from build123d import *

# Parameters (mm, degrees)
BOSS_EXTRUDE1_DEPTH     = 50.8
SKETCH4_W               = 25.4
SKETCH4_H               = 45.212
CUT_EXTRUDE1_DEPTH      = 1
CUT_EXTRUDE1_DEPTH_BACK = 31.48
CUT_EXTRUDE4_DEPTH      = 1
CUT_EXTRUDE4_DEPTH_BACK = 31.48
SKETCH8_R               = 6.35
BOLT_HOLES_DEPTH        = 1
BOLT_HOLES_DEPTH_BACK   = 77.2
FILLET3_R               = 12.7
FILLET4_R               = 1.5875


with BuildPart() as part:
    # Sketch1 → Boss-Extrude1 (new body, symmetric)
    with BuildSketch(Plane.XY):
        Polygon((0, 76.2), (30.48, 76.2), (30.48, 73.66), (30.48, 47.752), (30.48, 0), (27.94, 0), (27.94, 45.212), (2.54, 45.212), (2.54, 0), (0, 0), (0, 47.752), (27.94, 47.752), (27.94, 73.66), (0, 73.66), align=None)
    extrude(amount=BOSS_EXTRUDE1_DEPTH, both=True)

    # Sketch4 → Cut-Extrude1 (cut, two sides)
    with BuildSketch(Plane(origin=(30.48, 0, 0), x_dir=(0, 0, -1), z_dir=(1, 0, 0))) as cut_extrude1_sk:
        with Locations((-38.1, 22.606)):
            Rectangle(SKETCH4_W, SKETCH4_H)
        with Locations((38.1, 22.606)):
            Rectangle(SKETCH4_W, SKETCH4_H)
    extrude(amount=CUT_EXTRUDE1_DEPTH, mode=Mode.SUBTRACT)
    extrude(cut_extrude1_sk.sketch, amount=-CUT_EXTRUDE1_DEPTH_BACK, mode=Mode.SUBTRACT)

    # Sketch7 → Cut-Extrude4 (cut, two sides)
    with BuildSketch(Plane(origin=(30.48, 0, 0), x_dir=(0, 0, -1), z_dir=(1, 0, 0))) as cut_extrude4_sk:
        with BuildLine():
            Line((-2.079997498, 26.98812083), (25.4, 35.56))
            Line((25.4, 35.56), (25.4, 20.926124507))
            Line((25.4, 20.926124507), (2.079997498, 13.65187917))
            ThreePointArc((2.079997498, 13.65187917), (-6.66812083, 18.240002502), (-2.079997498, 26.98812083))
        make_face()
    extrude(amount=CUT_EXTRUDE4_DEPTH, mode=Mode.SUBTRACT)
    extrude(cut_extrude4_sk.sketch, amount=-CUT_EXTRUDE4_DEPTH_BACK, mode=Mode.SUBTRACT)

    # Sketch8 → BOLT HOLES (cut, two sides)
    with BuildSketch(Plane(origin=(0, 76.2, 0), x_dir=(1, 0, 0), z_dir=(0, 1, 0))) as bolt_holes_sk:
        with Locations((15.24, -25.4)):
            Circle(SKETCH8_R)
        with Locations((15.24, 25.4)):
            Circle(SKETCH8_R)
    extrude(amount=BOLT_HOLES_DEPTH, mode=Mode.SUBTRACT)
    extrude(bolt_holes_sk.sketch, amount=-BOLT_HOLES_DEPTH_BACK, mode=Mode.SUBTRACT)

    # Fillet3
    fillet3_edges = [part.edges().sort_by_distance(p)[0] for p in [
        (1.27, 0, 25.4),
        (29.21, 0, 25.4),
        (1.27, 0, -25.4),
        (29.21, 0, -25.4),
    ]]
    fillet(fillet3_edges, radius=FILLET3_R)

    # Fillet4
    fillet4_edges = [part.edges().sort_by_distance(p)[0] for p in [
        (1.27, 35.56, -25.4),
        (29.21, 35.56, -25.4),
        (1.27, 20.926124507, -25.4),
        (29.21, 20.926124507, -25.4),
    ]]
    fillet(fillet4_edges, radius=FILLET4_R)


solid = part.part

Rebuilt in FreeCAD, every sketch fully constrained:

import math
import FreeCAD as App
import Part
import Sketcher
Q = App.Units.Quantity


def edges_at(feature, points):
    """Names of the edges that pass closest to the given points."""
    edges = feature.Shape.Edges
    near = lambda p: min(range(len(edges)), key=lambda i: edges[i].distToShape(Part.Vertex(*p))[0])
    return sorted({f"Edge{near(p) + 1}" for p in points})


def add_polygon(sketch, points):
    """Adds a closed chain of lines whose ends are joined by coincident constraints."""
    first, n = sketch.GeometryCount, len(points)
    for a, b in zip(points, points[1:] + points[:1]):
        sketch.addGeometry(Part.LineSegment(App.Vector(*a, 0), App.Vector(*b, 0)), False)
    for i in range(n):
        sketch.addConstraint(Sketcher.Constraint("Coincident", first + i, 2, first + (i + 1) % n, 1))

doc = App.newDocument("Part")
params = doc.addObject("Spreadsheet::Sheet", "Params")
for row, (alias, value) in enumerate([
    ("sketch1_width", "1 in"),
    ("sketch1_height", "3 in"),
    ("sketch1_width2", "1.2 in"),
    ("sketch1_height2", "1.02 in"),
    ("sketch1_height3", "1.78 in"),
    ("pad1_length", "4 in"),
    ("sketch2_height", "1 in"),
    ("sketch2_width", "1.78 in"),
    ("sketch3_radius", "0.275 in"),
    ("sketch4_diameter", "0.5 in"),
    ("fillet_radius", "0.5 in"),
    ("fillet2_radius", "0.0625 in"),
], start=1):
    params.set(f"A{row}", alias)
    params.set(f"B{row}", "=" + value)
    params.setAlias(f"B{row}", alias)

body = doc.addObject("PartDesign::Body", "Body")

# Sketch on XY plane
sketch1 = body.newObject("Sketcher::SketchObject", "Sketch")
sketch1.AttachmentSupport = (doc.getObject("XY_Plane"), [""])
sketch1.MapMode = "FlatFace"
add_polygon(sketch1, [(30.5, 76.2), (0, 76.2), (0, 73.7), (27.9, 73.7), (27.9, 47.8), (0, 47.8), (0, 0), (2.5, 0), (2.5, 45.2), (27.9, 45.2), (27.9, 0), (30.5, 0)])  # lines 0-11
sketch1.addConstraint(Sketcher.Constraint("Horizontal", 0))
sketch1.addConstraint(Sketcher.Constraint("Vertical", 1))
sketch1.addConstraint(Sketcher.Constraint("Horizontal", 2))
sketch1.addConstraint(Sketcher.Constraint("Vertical", 3))
sketch1.addConstraint(Sketcher.Constraint("Horizontal", 4))
sketch1.addConstraint(Sketcher.Constraint("Vertical", 5))
sketch1.addConstraint(Sketcher.Constraint("Horizontal", 6))
sketch1.addConstraint(Sketcher.Constraint("Vertical", 7))
sketch1.addConstraint(Sketcher.Constraint("Horizontal", 8))
sketch1.addConstraint(Sketcher.Constraint("Vertical", 9))
sketch1.addConstraint(Sketcher.Constraint("Horizontal", 10))
sketch1.addConstraint(Sketcher.Constraint("Vertical", 11))
sketch1.addConstraint(Sketcher.Constraint("Coincident", 5, 2, -1, 1))
sketch1.addConstraint(Sketcher.Constraint("PointOnObject", 0, 2, -2))
sketch1.addConstraint(Sketcher.Constraint("PointOnObject", 9, 2, -1))
sketch1.addConstraint(Sketcher.Constraint("Vertical", 3, 2, 8, 2))
sketch1.addConstraint(Sketcher.Constraint("Equal", 6, 10))
sketch1.addConstraint(Sketcher.Constraint("Equal", 10, 1))
sketch1.addConstraint(Sketcher.Constraint("DistanceX", 8, 1, 8, 2, Q("1 in")))
sketch1.addConstraint(Sketcher.Constraint("DistanceY", 11, 1, 11, 2, Q("3 in")))
sketch1.addConstraint(Sketcher.Constraint("DistanceX", 0, 2, 0, 1, Q("1.2 in")))
sketch1.addConstraint(Sketcher.Constraint("DistanceY", 3, 2, 3, 1, Q("1.02 in")))
sketch1.addConstraint(Sketcher.Constraint("DistanceY", 7, 1, 7, 2, Q("1.78 in")))
sketch1.setExpression("Constraints[30]", "Params.sketch1_width")
sketch1.setExpression("Constraints[31]", "Params.sketch1_height")
sketch1.setExpression("Constraints[32]", "Params.sketch1_width2")
sketch1.setExpression("Constraints[33]", "Params.sketch1_height2")
sketch1.setExpression("Constraints[34]", "Params.sketch1_height3")
pad1 = body.newObject("PartDesign::Pad", "Pad")
pad1.Profile = sketch1
pad1.setExpression("Length", "Params.pad1_length")
pad1.Midplane = True

# Sketch on YZ plane
sketch2 = body.newObject("Sketcher::SketchObject", "Sketch001")
sketch2.AttachmentSupport = (doc.getObject("YZ_Plane"), [""])
sketch2.MapMode = "FlatFace"
sketch2.AttachmentOffset = App.Placement(App.Vector(0, 0, 1.2 * 25.4), App.Rotation())
add_polygon(sketch2, [(45, 51), (0, 51), (0, 25), (45, 25)])  # lines 0-3
add_polygon(sketch2, [(45, -25), (0, -25), (0, -51), (45, -51)])  # lines 4-7
sketch2.addConstraint(Sketcher.Constraint("Horizontal", 0))
sketch2.addConstraint(Sketcher.Constraint("Vertical", 1))
sketch2.addConstraint(Sketcher.Constraint("Horizontal", 2))
sketch2.addConstraint(Sketcher.Constraint("Vertical", 3))
sketch2.addConstraint(Sketcher.Constraint("Horizontal", 4))
sketch2.addConstraint(Sketcher.Constraint("Vertical", 5))
sketch2.addConstraint(Sketcher.Constraint("Horizontal", 6))
sketch2.addConstraint(Sketcher.Constraint("Vertical", 7))
sketch2.addConstraint(Sketcher.Constraint("Symmetric", 1, 2, 4, 2, -1, 1))
sketch2.addConstraint(Sketcher.Constraint("Symmetric", 0, 2, 5, 2, -1))
sketch2.addConstraint(Sketcher.Constraint("Vertical", 3, 2, 6, 2))
sketch2.addConstraint(Sketcher.Constraint("DistanceY", 1, 2, 1, 1, Q("1 in")))
sketch2.addConstraint(Sketcher.Constraint("DistanceY", -1, 1, 0, 2, Q("2 in")))
sketch2.addConstraint(Sketcher.Constraint("DistanceX", 0, 2, 0, 1, Q("1.78 in")))
sketch2.setExpression("Constraints[19]", "Params.sketch2_height")
sketch2.setExpression("Constraints[21]", "Params.sketch2_width")
pocket1 = body.newObject("PartDesign::Pocket", "Pocket")
pocket1.Profile = sketch2
pocket1.Type = "ThroughAll"
pocket1.Midplane = True

# Sketch on YZ plane
sketch3 = body.newObject("Sketcher::SketchObject", "Sketch002")
sketch3.AttachmentSupport = (doc.getObject("YZ_Plane"), [""])
sketch3.MapMode = "FlatFace"
sketch3.AttachmentOffset = App.Placement(App.Vector(0, 0, 1.2 * 25.4), App.Rotation())
sketch3.addGeometry(Part.LineSegment(App.Vector(36, -25, 0), App.Vector(27, 2, 0)), False)
sketch3.addGeometry(Part.ArcOfCircle(Part.Circle(App.Vector(20, 0, 0), App.Vector(0, 0, 1), 7), math.radians(17), math.radians(197)), False)
sketch3.addGeometry(Part.LineSegment(App.Vector(14, -2, 0), App.Vector(21, -25, 0)), False)
sketch3.addGeometry(Part.LineSegment(App.Vector(21, -25, 0), App.Vector(36, -25, 0)), False)
sketch3.addConstraint(Sketcher.Constraint("Tangent", 0, 2, 1, 1))
sketch3.addConstraint(Sketcher.Constraint("Tangent", 1, 2, 2, 1))
sketch3.addConstraint(Sketcher.Constraint("Coincident", 2, 2, 3, 1))
sketch3.addConstraint(Sketcher.Constraint("Coincident", 3, 2, 0, 1))
sketch3.addConstraint(Sketcher.Constraint("Horizontal", 3))
sketch3.addConstraint(Sketcher.Constraint("PointOnObject", 1, 3, -1))
sketch3.addConstraint(Sketcher.Constraint("Parallel", 0, 2))
sketch3.addConstraint(Sketcher.Constraint("DistanceY", 2, 2, -1, 1, Q("1 in")))
sketch3.addConstraint(Sketcher.Constraint("Radius", 1, Q("0.275 in")))
sketch3.addConstraint(Sketcher.Constraint("DistanceX", -1, 1, 1, 3, Q("0.8 in")))
sketch3.addConstraint(Sketcher.Constraint("DistanceX", -1, 1, 3, 2, Q("1.4 in")))
sketch3.setExpression("Constraints[8]", "Params.sketch3_radius")
pocket2 = body.newObject("PartDesign::Pocket", "Pocket001")
pocket2.Profile = sketch3
pocket2.Type = "ThroughAll"
pocket2.Midplane = True

# Sketch on XZ plane
sketch4 = body.newObject("Sketcher::SketchObject", "Sketch003")
sketch4.AttachmentSupport = (doc.getObject("XZ_Plane"), [""])
sketch4.MapMode = "FlatFace"
sketch4.AttachmentOffset = App.Placement(App.Vector(0, 0, -3 * 25.4), App.Rotation())
sketch4.addGeometry(Part.Circle(App.Vector(15, 25, 0), App.Vector(0, 0, 1), 6), False)
sketch4.addGeometry(Part.Circle(App.Vector(15, -25, 0), App.Vector(0, 0, 1), 6), False)
sketch4.addConstraint(Sketcher.Constraint("Equal", 0, 1))
sketch4.addConstraint(Sketcher.Constraint("Symmetric", 0, 3, 1, 3, -1))
sketch4.addConstraint(Sketcher.Constraint("Diameter", 0, Q("0.5 in")))
sketch4.addConstraint(Sketcher.Constraint("DistanceY", -1, 1, 0, 3, Q("1 in")))
sketch4.addConstraint(Sketcher.Constraint("DistanceX", -1, 1, 0, 3, Q("0.6 in")))
sketch4.setExpression("Constraints[2]", "Params.sketch4_diameter")
pocket3 = body.newObject("PartDesign::Pocket", "Pocket002")
pocket3.Profile = sketch4
pocket3.Type = "ThroughAll"
pocket3.Midplane = True
doc.recompute()

fillet = body.newObject("PartDesign::Fillet", "Fillet")
fillet.Base = (pocket3, edges_at(pocket3, [
    (1.27, 0, 25.4),
    (29.21, 0, 25.4),
    (1.27, 0, -25.4),
    (29.21, 0, -25.4),
]))
fillet.setExpression("Radius", "Params.fillet_radius")
doc.recompute()

fillet2 = body.newObject("PartDesign::Fillet", "Fillet001")
fillet2.Base = (fillet, edges_at(fillet, [
    (1.27, 35.56, -25.4),
    (29.21, 35.56, -25.4),
    (1.27, 20.926, -25.4),
    (29.21, 20.926, -25.4),
]))
fillet2.setExpression("Radius", "Params.fillet2_radius")

doc.recompute()
